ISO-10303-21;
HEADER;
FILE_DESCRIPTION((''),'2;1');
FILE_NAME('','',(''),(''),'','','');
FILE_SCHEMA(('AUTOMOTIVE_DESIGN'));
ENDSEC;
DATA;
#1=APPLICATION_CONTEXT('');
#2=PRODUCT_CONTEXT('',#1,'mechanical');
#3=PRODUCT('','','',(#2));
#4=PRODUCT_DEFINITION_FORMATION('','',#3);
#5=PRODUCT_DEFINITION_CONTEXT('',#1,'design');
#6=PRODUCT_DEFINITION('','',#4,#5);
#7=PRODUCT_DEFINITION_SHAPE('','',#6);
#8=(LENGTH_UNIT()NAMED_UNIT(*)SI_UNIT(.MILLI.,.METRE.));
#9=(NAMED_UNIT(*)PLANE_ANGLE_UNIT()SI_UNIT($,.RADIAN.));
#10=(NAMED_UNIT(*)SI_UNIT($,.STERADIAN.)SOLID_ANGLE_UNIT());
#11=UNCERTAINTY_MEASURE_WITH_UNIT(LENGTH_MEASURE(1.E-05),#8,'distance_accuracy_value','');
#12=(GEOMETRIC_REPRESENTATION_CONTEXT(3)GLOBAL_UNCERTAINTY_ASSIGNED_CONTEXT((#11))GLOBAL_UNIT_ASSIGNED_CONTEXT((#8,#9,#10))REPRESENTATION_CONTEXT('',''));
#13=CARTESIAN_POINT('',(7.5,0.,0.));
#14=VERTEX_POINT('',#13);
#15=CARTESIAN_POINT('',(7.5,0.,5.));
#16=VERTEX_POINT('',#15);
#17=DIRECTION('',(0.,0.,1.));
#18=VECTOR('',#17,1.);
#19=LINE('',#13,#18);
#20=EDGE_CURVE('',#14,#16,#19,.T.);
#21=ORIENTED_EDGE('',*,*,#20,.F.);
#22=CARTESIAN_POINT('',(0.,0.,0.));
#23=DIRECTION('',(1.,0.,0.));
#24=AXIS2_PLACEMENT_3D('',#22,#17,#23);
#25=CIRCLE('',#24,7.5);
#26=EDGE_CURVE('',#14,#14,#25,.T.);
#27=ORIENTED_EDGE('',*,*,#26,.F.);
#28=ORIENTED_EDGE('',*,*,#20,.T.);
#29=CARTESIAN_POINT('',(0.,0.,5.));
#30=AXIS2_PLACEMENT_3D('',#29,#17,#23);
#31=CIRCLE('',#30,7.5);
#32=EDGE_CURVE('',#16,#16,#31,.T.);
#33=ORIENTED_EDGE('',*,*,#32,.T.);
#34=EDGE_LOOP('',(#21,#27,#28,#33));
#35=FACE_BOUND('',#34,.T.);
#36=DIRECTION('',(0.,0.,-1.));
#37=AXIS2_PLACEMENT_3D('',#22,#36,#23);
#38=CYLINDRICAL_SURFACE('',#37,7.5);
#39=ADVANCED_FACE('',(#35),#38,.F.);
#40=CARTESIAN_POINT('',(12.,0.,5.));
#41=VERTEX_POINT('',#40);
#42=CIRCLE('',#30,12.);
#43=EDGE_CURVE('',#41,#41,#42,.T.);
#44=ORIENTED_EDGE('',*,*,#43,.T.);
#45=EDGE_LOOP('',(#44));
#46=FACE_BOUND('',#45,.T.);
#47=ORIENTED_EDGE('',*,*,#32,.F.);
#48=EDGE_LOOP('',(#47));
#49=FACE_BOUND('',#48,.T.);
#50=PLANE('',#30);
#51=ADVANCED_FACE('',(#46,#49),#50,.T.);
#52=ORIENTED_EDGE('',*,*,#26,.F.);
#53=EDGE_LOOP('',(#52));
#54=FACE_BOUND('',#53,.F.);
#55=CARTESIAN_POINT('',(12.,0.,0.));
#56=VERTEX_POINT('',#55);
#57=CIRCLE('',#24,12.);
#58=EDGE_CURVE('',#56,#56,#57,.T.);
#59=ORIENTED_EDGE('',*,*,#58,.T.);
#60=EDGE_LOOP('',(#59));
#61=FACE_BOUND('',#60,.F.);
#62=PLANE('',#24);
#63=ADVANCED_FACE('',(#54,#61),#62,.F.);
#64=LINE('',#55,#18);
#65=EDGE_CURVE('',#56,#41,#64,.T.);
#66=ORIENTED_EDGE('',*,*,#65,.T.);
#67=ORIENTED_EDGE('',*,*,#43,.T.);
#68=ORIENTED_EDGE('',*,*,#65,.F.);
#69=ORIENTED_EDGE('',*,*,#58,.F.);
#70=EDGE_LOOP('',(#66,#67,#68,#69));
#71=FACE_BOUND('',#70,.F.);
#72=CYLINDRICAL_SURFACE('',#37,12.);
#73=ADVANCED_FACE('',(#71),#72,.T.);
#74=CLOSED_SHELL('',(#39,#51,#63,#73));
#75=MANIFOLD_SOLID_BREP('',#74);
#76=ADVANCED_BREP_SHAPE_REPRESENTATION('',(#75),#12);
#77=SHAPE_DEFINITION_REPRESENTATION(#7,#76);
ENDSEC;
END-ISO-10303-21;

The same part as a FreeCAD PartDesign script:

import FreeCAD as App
import Part
import Sketcher
from FreeCAD import Vector
Q = App.Units.Quantity

doc = App.newDocument("Part")
body = doc.addObject("PartDesign::Body", "Body")

# Sketch on XY plane
sketch1 = doc.addObject("Sketcher::SketchObject", "Sketch")
body.addObject(sketch1)
sketch1.AttachmentSupport = (doc.XY_Plane, [""])
sketch1.MapMode = "FlatFace"
sketch1.addGeometry([
    Part.Circle(Vector(0, 0, 0), Vector(0, 0, 1), 12),
    Part.Circle(Vector(0, 0, 0), Vector(0, 0, 1), 8),
], False)
sketch1.addConstraint([
    Sketcher.Constraint("Coincident", 0, 3, -1, 1),
    Sketcher.Constraint("Coincident", 1, 3, -1, 1),
    Sketcher.Constraint("Diameter", 0, Q("24 mm")),
    Sketcher.Constraint("Diameter", 1, Q("15 mm")),
])
pad1 = doc.addObject("PartDesign::Pad", "Pad")
body.addObject(pad1)
pad1.Profile = sketch1
pad1.Length = 5

doc.recompute()
